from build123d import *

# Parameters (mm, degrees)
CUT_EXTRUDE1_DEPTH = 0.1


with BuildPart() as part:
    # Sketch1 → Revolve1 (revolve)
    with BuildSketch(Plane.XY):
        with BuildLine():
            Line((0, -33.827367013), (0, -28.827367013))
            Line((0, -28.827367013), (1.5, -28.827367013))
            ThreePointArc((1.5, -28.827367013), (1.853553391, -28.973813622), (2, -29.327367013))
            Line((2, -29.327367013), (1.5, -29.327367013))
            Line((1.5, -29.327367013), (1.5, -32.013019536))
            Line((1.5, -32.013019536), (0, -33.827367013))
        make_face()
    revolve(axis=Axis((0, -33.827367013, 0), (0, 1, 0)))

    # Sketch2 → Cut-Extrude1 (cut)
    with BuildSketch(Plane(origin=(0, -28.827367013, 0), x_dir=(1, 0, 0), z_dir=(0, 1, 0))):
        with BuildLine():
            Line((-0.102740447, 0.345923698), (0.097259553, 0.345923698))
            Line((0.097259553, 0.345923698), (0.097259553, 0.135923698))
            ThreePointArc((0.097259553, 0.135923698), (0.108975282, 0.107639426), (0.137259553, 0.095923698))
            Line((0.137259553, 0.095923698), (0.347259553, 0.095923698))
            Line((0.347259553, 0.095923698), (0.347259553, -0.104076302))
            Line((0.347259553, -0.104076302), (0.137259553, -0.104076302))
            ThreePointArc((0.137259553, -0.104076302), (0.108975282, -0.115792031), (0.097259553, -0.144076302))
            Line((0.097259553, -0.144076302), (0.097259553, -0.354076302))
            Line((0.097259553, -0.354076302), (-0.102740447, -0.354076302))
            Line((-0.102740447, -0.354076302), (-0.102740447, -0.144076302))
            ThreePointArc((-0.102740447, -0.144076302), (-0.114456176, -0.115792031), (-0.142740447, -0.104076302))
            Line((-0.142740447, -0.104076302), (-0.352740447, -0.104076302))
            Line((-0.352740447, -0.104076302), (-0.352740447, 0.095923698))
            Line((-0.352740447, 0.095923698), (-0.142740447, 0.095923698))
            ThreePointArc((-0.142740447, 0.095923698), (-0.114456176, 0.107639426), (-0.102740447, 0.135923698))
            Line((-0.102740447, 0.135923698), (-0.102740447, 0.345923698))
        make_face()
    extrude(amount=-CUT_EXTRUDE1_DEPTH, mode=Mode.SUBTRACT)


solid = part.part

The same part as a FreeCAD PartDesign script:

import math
import FreeCAD as App
import Part
import Sketcher
from FreeCAD import Vector
Q = App.Units.Quantity

doc = App.newDocument("Part")
body = doc.addObject("PartDesign::Body", "Body")

# Sketch on XY plane
sketch1 = doc.addObject("Sketcher::SketchObject", "Sketch")
body.addObject(sketch1)
sketch1.AttachmentSupport = (doc.XY_Plane, [""])
sketch1.MapMode = "FlatFace"
sketch1.addGeometry([
    Part.LineSegment(Vector(0, -28.83, 0), Vector(0, -33.83, 0)),  # 0
    Part.LineSegment(Vector(0, -33.83, 0), Vector(1.5, -32.01, 0)),  # 1
    Part.LineSegment(Vector(1.5, -32.01, 0), Vector(1.5, -29.33, 0)),  # 2
    Part.LineSegment(Vector(1.5, -29.33, 0), Vector(2, -29.33, 0)),  # 3
    Part.ArcOfCircle(Part.Circle(Vector(1.5, -29.33, 0), Vector(0, 0, 1), 0.5), math.radians(0), math.radians(90)),  # 4
    Part.LineSegment(Vector(1.5, -28.83, 0), Vector(0, -28.83, 0)),  # 5
], False)
sketch1.addConstraint([
    Sketcher.Constraint("Coincident", 0, 2, 1, 1),
    Sketcher.Constraint("Coincident", 1, 2, 2, 1),
    Sketcher.Constraint("Coincident", 2, 2, 3, 1),
    Sketcher.Constraint("Coincident", 3, 2, 4, 1),
    Sketcher.Constraint("Tangent", 4, 2, 5, 1),
    Sketcher.Constraint("Coincident", 5, 2, 0, 1),
    Sketcher.Constraint("Vertical", 0),
    Sketcher.Constraint("Vertical", 2),
    Sketcher.Constraint("Horizontal", 3),
    Sketcher.Constraint("Horizontal", 5),
    Sketcher.Constraint("Coincident", 2, 2, 4, 3),
    Sketcher.Constraint("PointOnObject", 0, 2, -2),
    Sketcher.Constraint("Radius", 4, Q("0.5 mm")),
    Sketcher.Constraint("DistanceY", 0, 2, 0, 1, Q("5 mm")),
    Sketcher.Constraint("DistanceX", 5, 2, 5, 1, Q("1.5 mm")),
    Sketcher.Constraint("DistanceY", 2, 1, 2, 2, Q("2.685653 mm")),
    Sketcher.Constraint("DistanceY", 1, 2, -1, 1, Q("32.01302 mm")),
])
revolution = doc.addObject("PartDesign::Revolution", "Revolution")
body.addObject(revolution)
revolution.Profile = sketch1
revolution.ReferenceAxis = (sketch1, ["V_Axis"])
revolution.Angle = 360

# Sketch on XZ plane
sketch2 = doc.addObject("Sketcher::SketchObject", "Sketch001")
body.addObject(sketch2)
sketch2.AttachmentSupport = (doc.XZ_Plane, [""])
sketch2.MapMode = "FlatFace"
sketch2.AttachmentOffset = App.Placement(Vector(0, 0, 28.827367), App.Rotation())
sketch2.addGeometry([
    Part.LineSegment(Vector(0.097, -0.346, 0), Vector(-0.103, -0.346, 0)),  # 0
    Part.LineSegment(Vector(-0.103, -0.346, 0), Vector(-0.103, -0.136, 0)),  # 1
    Part.ArcOfCircle(Part.Circle(Vector(-0.143, -0.136, 0), Vector(0, 0, 1), 0.04), math.radians(0), math.radians(90)),  # 2
    Part.LineSegment(Vector(-0.143, -0.096, 0), Vector(-0.353, -0.096, 0)),  # 3
    Part.LineSegment(Vector(-0.353, -0.096, 0), Vector(-0.353, 0.104, 0)),  # 4
    Part.LineSegment(Vector(-0.353, 0.104, 0), Vector(-0.143, 0.104, 0)),  # 5
    Part.ArcOfCircle(Part.Circle(Vector(-0.143, 0.144, 0), Vector(0, 0, 1), 0.04), math.radians(-90), math.radians(0)),  # 6
    Part.LineSegment(Vector(-0.103, 0.144, 0), Vector(-0.103, 0.354, 0)),  # 7
    Part.LineSegment(Vector(-0.103, 0.354, 0), Vector(0.097, 0.354, 0)),  # 8
    Part.LineSegment(Vector(0.097, 0.354, 0), Vector(0.097, 0.144, 0)),  # 9
    Part.ArcOfCircle(Part.Circle(Vector(0.137, 0.144, 0), Vector(0, 0, 1), 0.04), math.radians(-180), math.radians(-90)),  # 10
    Part.LineSegment(Vector(0.137, 0.104, 0), Vector(0.347, 0.104, 0)),  # 11
    Part.LineSegment(Vector(0.347, 0.104, 0), Vector(0.347, -0.096, 0)),  # 12
    Part.LineSegment(Vector(0.347, -0.096, 0), Vector(0.137, -0.096, 0)),  # 13
    Part.ArcOfCircle(Part.Circle(Vector(0.137, -0.136, 0), Vector(0, 0, 1), 0.04), math.radians(90), math.radians(180)),  # 14
    Part.LineSegment(Vector(0.097, -0.136, 0), Vector(0.097, -0.346, 0)),  # 15
], False)
sketch2.addConstraint([
    Sketcher.Constraint("Coincident", 0, 2, 1, 1),
    Sketcher.Constraint("Tangent", 1, 2, 2, 1),
    Sketcher.Constraint("Tangent", 2, 2, 3, 1),
    Sketcher.Constraint("Coincident", 3, 2, 4, 1),
    Sketcher.Constraint("Coincident", 4, 2, 5, 1),
    Sketcher.Constraint("Tangent", 5, 2, 6, 1),
    Sketcher.Constraint("Tangent", 6, 2, 7, 1),
    Sketcher.Constraint("Coincident", 7, 2, 8, 1),
    Sketcher.Constraint("Coincident", 8, 2, 9, 1),
    Sketcher.Constraint("Tangent", 9, 2, 10, 1),
    Sketcher.Constraint("Tangent", 10, 2, 11, 1),
    Sketcher.Constraint("Coincident", 11, 2, 12, 1),
    Sketcher.Constraint("Coincident", 12, 2, 13, 1),
    Sketcher.Constraint("Tangent", 13, 2, 14, 1),
    Sketcher.Constraint("Tangent", 14, 2, 15, 1),
    Sketcher.Constraint("Coincident", 15, 2, 0, 1),
    Sketcher.Constraint("Horizontal", 0),
    Sketcher.Constraint("Vertical", 1),
    Sketcher.Constraint("Horizontal", 3),
    Sketcher.Constraint("Vertical", 4),
    Sketcher.Constraint("Horizontal", 5),
    Sketcher.Constraint("Vertical", 7),
    Sketcher.Constraint("Horizontal", 8),
    Sketcher.Constraint("Vertical", 9),
    Sketcher.Constraint("Horizontal", 11),
    Sketcher.Constraint("Vertical", 12),
    Sketcher.Constraint("Horizontal", 13),
    Sketcher.Constraint("Vertical", 15),
    Sketcher.Constraint("Equal", 2, 6),
    Sketcher.Constraint("Equal", 6, 10),
    Sketcher.Constraint("Equal", 10, 14),
    Sketcher.Constraint("Horizontal", 6, 3, 10, 3),
    Sketcher.Constraint("Horizontal", 2, 3, 14, 3),
    Sketcher.Constraint("Vertical", 2, 3, 6, 3),
    Sketcher.Constraint("Vertical", 10, 3, 14, 3),
    Sketcher.Constraint("Equal", 5, 11),
    Sketcher.Constraint("Equal", 13, 1),
    Sketcher.Constraint("Equal", 8, 4),
    Sketcher.Constraint("Equal", 1, 7),
    Sketcher.Constraint("Radius", 2, Q("0.04 mm")),
    Sketcher.Constraint("DistanceX", 0, 2, 0, 1, Q("0.2 mm")),
    Sketcher.Constraint("DistanceX", 3, 2, 3, 1, Q("0.21 mm")),
    Sketcher.Constraint("DistanceX", 2, 3, -1, 1, Q("0.14274 mm")),
    Sketcher.Constraint("DistanceY", 2, 3, -1, 1, Q("0.135924 mm")),
])
pocket1 = doc.addObject("PartDesign::Pocket", "Pocket")
body.addObject(pocket1)
pocket1.Profile = sketch2
pocket1.Length = 0.1
pocket1.Reversed = True

doc.recompute()
